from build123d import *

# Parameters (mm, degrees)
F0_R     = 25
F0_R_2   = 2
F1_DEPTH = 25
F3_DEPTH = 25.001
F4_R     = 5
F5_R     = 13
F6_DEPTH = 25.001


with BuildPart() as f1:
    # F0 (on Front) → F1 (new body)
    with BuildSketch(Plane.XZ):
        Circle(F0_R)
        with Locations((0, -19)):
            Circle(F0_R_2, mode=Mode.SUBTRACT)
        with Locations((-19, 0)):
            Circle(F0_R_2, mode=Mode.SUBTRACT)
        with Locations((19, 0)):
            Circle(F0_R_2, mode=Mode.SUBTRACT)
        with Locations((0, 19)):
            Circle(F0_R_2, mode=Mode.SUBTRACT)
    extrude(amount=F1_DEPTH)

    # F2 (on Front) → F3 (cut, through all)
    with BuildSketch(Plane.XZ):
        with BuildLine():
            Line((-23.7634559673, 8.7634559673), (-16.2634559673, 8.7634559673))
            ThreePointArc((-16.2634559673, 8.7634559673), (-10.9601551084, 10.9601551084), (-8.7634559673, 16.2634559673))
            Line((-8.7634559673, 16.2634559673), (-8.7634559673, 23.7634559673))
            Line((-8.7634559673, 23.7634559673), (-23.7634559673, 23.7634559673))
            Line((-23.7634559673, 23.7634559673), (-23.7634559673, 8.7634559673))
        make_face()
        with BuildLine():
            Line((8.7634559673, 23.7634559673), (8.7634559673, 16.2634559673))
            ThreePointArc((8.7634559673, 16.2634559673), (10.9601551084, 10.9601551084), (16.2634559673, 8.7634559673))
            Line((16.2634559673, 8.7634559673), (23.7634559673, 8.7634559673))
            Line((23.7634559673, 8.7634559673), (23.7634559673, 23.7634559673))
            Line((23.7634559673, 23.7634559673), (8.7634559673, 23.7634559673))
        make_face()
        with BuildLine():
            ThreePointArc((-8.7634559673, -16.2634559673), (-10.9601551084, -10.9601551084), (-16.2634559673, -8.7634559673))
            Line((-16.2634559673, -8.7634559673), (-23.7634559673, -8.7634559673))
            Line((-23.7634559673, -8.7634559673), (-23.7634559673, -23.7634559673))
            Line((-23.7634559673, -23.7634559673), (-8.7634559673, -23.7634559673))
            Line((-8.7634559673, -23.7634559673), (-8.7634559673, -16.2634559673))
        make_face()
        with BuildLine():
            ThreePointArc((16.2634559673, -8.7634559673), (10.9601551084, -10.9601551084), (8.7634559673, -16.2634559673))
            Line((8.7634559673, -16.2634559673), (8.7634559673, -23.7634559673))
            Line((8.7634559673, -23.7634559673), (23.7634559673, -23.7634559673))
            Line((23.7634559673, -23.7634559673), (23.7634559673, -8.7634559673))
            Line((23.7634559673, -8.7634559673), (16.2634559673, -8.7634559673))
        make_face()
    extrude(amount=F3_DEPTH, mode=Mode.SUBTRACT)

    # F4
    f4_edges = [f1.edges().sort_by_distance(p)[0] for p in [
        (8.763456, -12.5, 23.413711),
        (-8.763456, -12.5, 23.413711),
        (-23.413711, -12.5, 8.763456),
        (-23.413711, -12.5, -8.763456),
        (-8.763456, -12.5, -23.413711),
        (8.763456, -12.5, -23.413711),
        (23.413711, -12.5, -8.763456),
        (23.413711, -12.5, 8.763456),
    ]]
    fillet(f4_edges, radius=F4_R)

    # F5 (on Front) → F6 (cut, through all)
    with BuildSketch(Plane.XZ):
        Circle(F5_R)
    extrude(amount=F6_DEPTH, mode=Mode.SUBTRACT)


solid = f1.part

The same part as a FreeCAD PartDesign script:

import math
import FreeCAD as App
import Part
import Sketcher


def edges_at(feature, points):
    """Names of the edges that pass closest to the given points."""
    edges = feature.Shape.Edges
    near = lambda p: min(range(len(edges)), key=lambda i: edges[i].distToShape(Part.Vertex(*p))[0])
    return sorted({f"Edge{near(p) + 1}" for p in points})

doc = App.newDocument("Part")
body = doc.addObject("PartDesign::Body", "Body")

# Sketch on XZ plane
sketch1 = body.newObject("Sketcher::SketchObject", "Sketch")
sketch1.AttachmentSupport = (doc.getObject("XZ_Plane"), [""])
sketch1.MapMode = "FlatFace"
sketch1.addGeometry(Part.Circle(App.Vector(0, 0, 0), App.Vector(0, 0, 1), 25), False)
sketch1.addGeometry(Part.Circle(App.Vector(0, -19, 0), App.Vector(0, 0, 1), 2), False)
sketch1.addGeometry(Part.Circle(App.Vector(-19, 0, 0), App.Vector(0, 0, 1), 2), False)
sketch1.addGeometry(Part.Circle(App.Vector(19, 0, 0), App.Vector(0, 0, 1), 2), False)
sketch1.addGeometry(Part.Circle(App.Vector(0, 19, 0), App.Vector(0, 0, 1), 2), False)
sketch1.addConstraint(Sketcher.Constraint("Coincident", 0, 3, -1, 1))
sketch1.addConstraint(Sketcher.Constraint("Equal", 1, 2))
sketch1.addConstraint(Sketcher.Constraint("Equal", 2, 3))
sketch1.addConstraint(Sketcher.Constraint("Equal", 3, 4))
sketch1.addConstraint(Sketcher.Constraint("Symmetric", 2, 3, 3, 3, -1, 1))
sketch1.addConstraint(Sketcher.Constraint("Symmetric", 1, 3, 4, 3, -1, 1))
sketch1.addConstraint(Sketcher.Constraint("PointOnObject", 1, 3, -2))
sketch1.addConstraint(Sketcher.Constraint("PointOnObject", 2, 3, -1))
sketch1.addConstraint(Sketcher.Constraint("Diameter", 0, 50.0))
sketch1.addConstraint(Sketcher.Constraint("Diameter", 1, 4.0))
sketch1.addConstraint(Sketcher.Constraint("DistanceY", 1, 3, -1, 1, 19.0))
sketch1.addConstraint(Sketcher.Constraint("DistanceX", 2, 3, -1, 1, 19.0))
pad1 = body.newObject("PartDesign::Pad", "Pad")
pad1.Profile = sketch1
pad1.Length = 25

# Sketch on XZ plane
sketch2 = body.newObject("Sketcher::SketchObject", "Sketch001")
sketch2.AttachmentSupport = (doc.getObject("XZ_Plane"), [""])
sketch2.MapMode = "FlatFace"
sketch2.addGeometry(Part.LineSegment(App.Vector(-24, 9, 0), App.Vector(-16, 9, 0)), False)
sketch2.addGeometry(Part.ArcOfCircle(Part.Circle(App.Vector(-16, 16, 0), App.Vector(0, 0, 1), 8), math.radians(-90), math.radians(0)), False)
sketch2.addGeometry(Part.LineSegment(App.Vector(-9, 16, 0), App.Vector(-9, 24, 0)), False)
sketch2.addGeometry(Part.LineSegment(App.Vector(-9, 24, 0), App.Vector(-24, 24, 0)), False)
sketch2.addGeometry(Part.LineSegment(App.Vector(-24, 24, 0), App.Vector(-24, 9, 0)), False)
sketch2.addGeometry(Part.LineSegment(App.Vector(9, 24, 0), App.Vector(9, 16, 0)), False)
sketch2.addGeometry(Part.ArcOfCircle(Part.Circle(App.Vector(16, 16, 0), App.Vector(0, 0, 1), 8), math.radians(180), math.radians(270)), False)
sketch2.addGeometry(Part.LineSegment(App.Vector(16, 9, 0), App.Vector(24, 9, 0)), False)
sketch2.addGeometry(Part.LineSegment(App.Vector(24, 9, 0), App.Vector(24, 24, 0)), False)
sketch2.addGeometry(Part.LineSegment(App.Vector(24, 24, 0), App.Vector(9, 24, 0)), False)
sketch2.addGeometry(Part.ArcOfCircle(Part.Circle(App.Vector(-16, -16, 0), App.Vector(0, 0, 1), 8), math.radians(0), math.radians(90)), False)
sketch2.addGeometry(Part.LineSegment(App.Vector(-16, -9, 0), App.Vector(-24, -9, 0)), False)
sketch2.addGeometry(Part.LineSegment(App.Vector(-24, -9, 0), App.Vector(-24, -24, 0)), False)
sketch2.addGeometry(Part.LineSegment(App.Vector(-24, -24, 0), App.Vector(-9, -24, 0)), False)
sketch2.addGeometry(Part.LineSegment(App.Vector(-9, -24, 0), App.Vector(-9, -16, 0)), False)
sketch2.addGeometry(Part.ArcOfCircle(Part.Circle(App.Vector(16, -16, 0), App.Vector(0, 0, 1), 8), math.radians(90), math.radians(180)), False)
sketch2.addGeometry(Part.LineSegment(App.Vector(9, -16, 0), App.Vector(9, -24, 0)), False)
sketch2.addGeometry(Part.LineSegment(App.Vector(9, -24, 0), App.Vector(24, -24, 0)), False)
sketch2.addGeometry(Part.LineSegment(App.Vector(24, -24, 0), App.Vector(24, -9, 0)), False)
sketch2.addGeometry(Part.LineSegment(App.Vector(24, -9, 0), App.Vector(16, -9, 0)), False)
sketch2.addConstraint(Sketcher.Constraint("Tangent", 0, 2, 1, 1))
sketch2.addConstraint(Sketcher.Constraint("Tangent", 1, 2, 2, 1))
sketch2.addConstraint(Sketcher.Constraint("Coincident", 2, 2, 3, 1))
sketch2.addConstraint(Sketcher.Constraint("Coincident", 3, 2, 4, 1))
sketch2.addConstraint(Sketcher.Constraint("Coincident", 4, 2, 0, 1))
sketch2.addConstraint(Sketcher.Constraint("Tangent", 5, 2, 6, 1))
sketch2.addConstraint(Sketcher.Constraint("Tangent", 6, 2, 7, 1))
sketch2.addConstraint(Sketcher.Constraint("Coincident", 7, 2, 8, 1))
sketch2.addConstraint(Sketcher.Constraint("Coincident", 8, 2, 9, 1))
sketch2.addConstraint(Sketcher.Constraint("Coincident", 9, 2, 5, 1))
sketch2.addConstraint(Sketcher.Constraint("Tangent", 10, 2, 11, 1))
sketch2.addConstraint(Sketcher.Constraint("Coincident", 11, 2, 12, 1))
sketch2.addConstraint(Sketcher.Constraint("Coincident", 12, 2, 13, 1))
sketch2.addConstraint(Sketcher.Constraint("Coincident", 13, 2, 14, 1))
sketch2.addConstraint(Sketcher.Constraint("Tangent", 14, 2, 10, 1))
sketch2.addConstraint(Sketcher.Constraint("Tangent", 15, 2, 16, 1))
sketch2.addConstraint(Sketcher.Constraint("Coincident", 16, 2, 17, 1))
sketch2.addConstraint(Sketcher.Constraint("Coincident", 17, 2, 18, 1))
sketch2.addConstraint(Sketcher.Constraint("Coincident", 18, 2, 19, 1))
sketch2.addConstraint(Sketcher.Constraint("Tangent", 19, 2, 15, 1))
sketch2.addConstraint(Sketcher.Constraint("Horizontal", 0))
sketch2.addConstraint(Sketcher.Constraint("Vertical", 2))
sketch2.addConstraint(Sketcher.Constraint("Horizontal", 3))
sketch2.addConstraint(Sketcher.Constraint("Vertical", 4))
sketch2.addConstraint(Sketcher.Constraint("Vertical", 5))
sketch2.addConstraint(Sketcher.Constraint("Horizontal", 7))
sketch2.addConstraint(Sketcher.Constraint("Vertical", 8))
sketch2.addConstraint(Sketcher.Constraint("Horizontal", 9))
sketch2.addConstraint(Sketcher.Constraint("Horizontal", 11))
sketch2.addConstraint(Sketcher.Constraint("Vertical", 12))
sketch2.addConstraint(Sketcher.Constraint("Horizontal", 13))
sketch2.addConstraint(Sketcher.Constraint("Vertical", 14))
sketch2.addConstraint(Sketcher.Constraint("Vertical", 16))
sketch2.addConstraint(Sketcher.Constraint("Horizontal", 17))
sketch2.addConstraint(Sketcher.Constraint("Vertical", 18))
sketch2.addConstraint(Sketcher.Constraint("Horizontal", 19))
sketch2.addConstraint(Sketcher.Constraint("Equal", 1, 6))
sketch2.addConstraint(Sketcher.Constraint("Equal", 6, 10))
sketch2.addConstraint(Sketcher.Constraint("Equal", 10, 15))
sketch2.addConstraint(Sketcher.Constraint("Symmetric", 6, 3, 10, 3, -1, 1))
sketch2.addConstraint(Sketcher.Constraint("Symmetric", 1, 3, 15, 3, -1, 1))
sketch2.addConstraint(Sketcher.Constraint("Symmetric", 8, 2, 12, 2, -1, 1))
sketch2.addConstraint(Sketcher.Constraint("Symmetric", 3, 2, 17, 2, -1, 1))
sketch2.addConstraint(Sketcher.Constraint("Symmetric", 1, 3, 6, 3, -2))
sketch2.addConstraint(Sketcher.Constraint("Symmetric", 3, 2, 8, 2, -2))
sketch2.addConstraint(Sketcher.Constraint("Equal", 19, 2))
sketch2.addConstraint(Sketcher.Constraint("Radius", 1, 7.5))
sketch2.addConstraint(Sketcher.Constraint("DistanceX", 3, 2, 3, 1, 15.0))
sketch2.addConstraint(Sketcher.Constraint("DistanceX", 1, 3, 6, 3, 32.526912))
sketch2.addConstraint(Sketcher.Constraint("DistanceY", 10, 3, 1, 3, 32.526912))
pocket1 = body.newObject("PartDesign::Pocket", "Pocket")
pocket1.Profile = sketch2
pocket1.Type = "ThroughAll"
pocket1.Reversed = True
doc.recompute()

fillet = body.newObject("PartDesign::Fillet", "Fillet")
fillet.Base = (pocket1, edges_at(pocket1, [
    (8.763, -12.5, 23.414),
    (-8.763, -12.5, 23.414),
    (-23.414, -12.5, 8.763),
    (-23.414, -12.5, -8.763),
    (-8.763, -12.5, -23.414),
    (8.763, -12.5, -23.414),
    (23.414, -12.5, -8.763),
    (23.414, -12.5, 8.763),
]))
fillet.Radius = 5

# Sketch on XZ plane
sketch3 = body.newObject("Sketcher::SketchObject", "Sketch002")
sketch3.AttachmentSupport = (doc.getObject("XZ_Plane"), [""])
sketch3.MapMode = "FlatFace"
sketch3.addGeometry(Part.Circle(App.Vector(0, 0, 0), App.Vector(0, 0, 1), 13), False)
sketch3.addConstraint(Sketcher.Constraint("Coincident", 0, 3, -1, 1))
sketch3.addConstraint(Sketcher.Constraint("Diameter", 0, 26.0))
pocket2 = body.newObject("PartDesign::Pocket", "Pocket001")
pocket2.Profile = sketch3
pocket2.Type = "ThroughAll"
pocket2.Reversed = True

doc.recompute()
